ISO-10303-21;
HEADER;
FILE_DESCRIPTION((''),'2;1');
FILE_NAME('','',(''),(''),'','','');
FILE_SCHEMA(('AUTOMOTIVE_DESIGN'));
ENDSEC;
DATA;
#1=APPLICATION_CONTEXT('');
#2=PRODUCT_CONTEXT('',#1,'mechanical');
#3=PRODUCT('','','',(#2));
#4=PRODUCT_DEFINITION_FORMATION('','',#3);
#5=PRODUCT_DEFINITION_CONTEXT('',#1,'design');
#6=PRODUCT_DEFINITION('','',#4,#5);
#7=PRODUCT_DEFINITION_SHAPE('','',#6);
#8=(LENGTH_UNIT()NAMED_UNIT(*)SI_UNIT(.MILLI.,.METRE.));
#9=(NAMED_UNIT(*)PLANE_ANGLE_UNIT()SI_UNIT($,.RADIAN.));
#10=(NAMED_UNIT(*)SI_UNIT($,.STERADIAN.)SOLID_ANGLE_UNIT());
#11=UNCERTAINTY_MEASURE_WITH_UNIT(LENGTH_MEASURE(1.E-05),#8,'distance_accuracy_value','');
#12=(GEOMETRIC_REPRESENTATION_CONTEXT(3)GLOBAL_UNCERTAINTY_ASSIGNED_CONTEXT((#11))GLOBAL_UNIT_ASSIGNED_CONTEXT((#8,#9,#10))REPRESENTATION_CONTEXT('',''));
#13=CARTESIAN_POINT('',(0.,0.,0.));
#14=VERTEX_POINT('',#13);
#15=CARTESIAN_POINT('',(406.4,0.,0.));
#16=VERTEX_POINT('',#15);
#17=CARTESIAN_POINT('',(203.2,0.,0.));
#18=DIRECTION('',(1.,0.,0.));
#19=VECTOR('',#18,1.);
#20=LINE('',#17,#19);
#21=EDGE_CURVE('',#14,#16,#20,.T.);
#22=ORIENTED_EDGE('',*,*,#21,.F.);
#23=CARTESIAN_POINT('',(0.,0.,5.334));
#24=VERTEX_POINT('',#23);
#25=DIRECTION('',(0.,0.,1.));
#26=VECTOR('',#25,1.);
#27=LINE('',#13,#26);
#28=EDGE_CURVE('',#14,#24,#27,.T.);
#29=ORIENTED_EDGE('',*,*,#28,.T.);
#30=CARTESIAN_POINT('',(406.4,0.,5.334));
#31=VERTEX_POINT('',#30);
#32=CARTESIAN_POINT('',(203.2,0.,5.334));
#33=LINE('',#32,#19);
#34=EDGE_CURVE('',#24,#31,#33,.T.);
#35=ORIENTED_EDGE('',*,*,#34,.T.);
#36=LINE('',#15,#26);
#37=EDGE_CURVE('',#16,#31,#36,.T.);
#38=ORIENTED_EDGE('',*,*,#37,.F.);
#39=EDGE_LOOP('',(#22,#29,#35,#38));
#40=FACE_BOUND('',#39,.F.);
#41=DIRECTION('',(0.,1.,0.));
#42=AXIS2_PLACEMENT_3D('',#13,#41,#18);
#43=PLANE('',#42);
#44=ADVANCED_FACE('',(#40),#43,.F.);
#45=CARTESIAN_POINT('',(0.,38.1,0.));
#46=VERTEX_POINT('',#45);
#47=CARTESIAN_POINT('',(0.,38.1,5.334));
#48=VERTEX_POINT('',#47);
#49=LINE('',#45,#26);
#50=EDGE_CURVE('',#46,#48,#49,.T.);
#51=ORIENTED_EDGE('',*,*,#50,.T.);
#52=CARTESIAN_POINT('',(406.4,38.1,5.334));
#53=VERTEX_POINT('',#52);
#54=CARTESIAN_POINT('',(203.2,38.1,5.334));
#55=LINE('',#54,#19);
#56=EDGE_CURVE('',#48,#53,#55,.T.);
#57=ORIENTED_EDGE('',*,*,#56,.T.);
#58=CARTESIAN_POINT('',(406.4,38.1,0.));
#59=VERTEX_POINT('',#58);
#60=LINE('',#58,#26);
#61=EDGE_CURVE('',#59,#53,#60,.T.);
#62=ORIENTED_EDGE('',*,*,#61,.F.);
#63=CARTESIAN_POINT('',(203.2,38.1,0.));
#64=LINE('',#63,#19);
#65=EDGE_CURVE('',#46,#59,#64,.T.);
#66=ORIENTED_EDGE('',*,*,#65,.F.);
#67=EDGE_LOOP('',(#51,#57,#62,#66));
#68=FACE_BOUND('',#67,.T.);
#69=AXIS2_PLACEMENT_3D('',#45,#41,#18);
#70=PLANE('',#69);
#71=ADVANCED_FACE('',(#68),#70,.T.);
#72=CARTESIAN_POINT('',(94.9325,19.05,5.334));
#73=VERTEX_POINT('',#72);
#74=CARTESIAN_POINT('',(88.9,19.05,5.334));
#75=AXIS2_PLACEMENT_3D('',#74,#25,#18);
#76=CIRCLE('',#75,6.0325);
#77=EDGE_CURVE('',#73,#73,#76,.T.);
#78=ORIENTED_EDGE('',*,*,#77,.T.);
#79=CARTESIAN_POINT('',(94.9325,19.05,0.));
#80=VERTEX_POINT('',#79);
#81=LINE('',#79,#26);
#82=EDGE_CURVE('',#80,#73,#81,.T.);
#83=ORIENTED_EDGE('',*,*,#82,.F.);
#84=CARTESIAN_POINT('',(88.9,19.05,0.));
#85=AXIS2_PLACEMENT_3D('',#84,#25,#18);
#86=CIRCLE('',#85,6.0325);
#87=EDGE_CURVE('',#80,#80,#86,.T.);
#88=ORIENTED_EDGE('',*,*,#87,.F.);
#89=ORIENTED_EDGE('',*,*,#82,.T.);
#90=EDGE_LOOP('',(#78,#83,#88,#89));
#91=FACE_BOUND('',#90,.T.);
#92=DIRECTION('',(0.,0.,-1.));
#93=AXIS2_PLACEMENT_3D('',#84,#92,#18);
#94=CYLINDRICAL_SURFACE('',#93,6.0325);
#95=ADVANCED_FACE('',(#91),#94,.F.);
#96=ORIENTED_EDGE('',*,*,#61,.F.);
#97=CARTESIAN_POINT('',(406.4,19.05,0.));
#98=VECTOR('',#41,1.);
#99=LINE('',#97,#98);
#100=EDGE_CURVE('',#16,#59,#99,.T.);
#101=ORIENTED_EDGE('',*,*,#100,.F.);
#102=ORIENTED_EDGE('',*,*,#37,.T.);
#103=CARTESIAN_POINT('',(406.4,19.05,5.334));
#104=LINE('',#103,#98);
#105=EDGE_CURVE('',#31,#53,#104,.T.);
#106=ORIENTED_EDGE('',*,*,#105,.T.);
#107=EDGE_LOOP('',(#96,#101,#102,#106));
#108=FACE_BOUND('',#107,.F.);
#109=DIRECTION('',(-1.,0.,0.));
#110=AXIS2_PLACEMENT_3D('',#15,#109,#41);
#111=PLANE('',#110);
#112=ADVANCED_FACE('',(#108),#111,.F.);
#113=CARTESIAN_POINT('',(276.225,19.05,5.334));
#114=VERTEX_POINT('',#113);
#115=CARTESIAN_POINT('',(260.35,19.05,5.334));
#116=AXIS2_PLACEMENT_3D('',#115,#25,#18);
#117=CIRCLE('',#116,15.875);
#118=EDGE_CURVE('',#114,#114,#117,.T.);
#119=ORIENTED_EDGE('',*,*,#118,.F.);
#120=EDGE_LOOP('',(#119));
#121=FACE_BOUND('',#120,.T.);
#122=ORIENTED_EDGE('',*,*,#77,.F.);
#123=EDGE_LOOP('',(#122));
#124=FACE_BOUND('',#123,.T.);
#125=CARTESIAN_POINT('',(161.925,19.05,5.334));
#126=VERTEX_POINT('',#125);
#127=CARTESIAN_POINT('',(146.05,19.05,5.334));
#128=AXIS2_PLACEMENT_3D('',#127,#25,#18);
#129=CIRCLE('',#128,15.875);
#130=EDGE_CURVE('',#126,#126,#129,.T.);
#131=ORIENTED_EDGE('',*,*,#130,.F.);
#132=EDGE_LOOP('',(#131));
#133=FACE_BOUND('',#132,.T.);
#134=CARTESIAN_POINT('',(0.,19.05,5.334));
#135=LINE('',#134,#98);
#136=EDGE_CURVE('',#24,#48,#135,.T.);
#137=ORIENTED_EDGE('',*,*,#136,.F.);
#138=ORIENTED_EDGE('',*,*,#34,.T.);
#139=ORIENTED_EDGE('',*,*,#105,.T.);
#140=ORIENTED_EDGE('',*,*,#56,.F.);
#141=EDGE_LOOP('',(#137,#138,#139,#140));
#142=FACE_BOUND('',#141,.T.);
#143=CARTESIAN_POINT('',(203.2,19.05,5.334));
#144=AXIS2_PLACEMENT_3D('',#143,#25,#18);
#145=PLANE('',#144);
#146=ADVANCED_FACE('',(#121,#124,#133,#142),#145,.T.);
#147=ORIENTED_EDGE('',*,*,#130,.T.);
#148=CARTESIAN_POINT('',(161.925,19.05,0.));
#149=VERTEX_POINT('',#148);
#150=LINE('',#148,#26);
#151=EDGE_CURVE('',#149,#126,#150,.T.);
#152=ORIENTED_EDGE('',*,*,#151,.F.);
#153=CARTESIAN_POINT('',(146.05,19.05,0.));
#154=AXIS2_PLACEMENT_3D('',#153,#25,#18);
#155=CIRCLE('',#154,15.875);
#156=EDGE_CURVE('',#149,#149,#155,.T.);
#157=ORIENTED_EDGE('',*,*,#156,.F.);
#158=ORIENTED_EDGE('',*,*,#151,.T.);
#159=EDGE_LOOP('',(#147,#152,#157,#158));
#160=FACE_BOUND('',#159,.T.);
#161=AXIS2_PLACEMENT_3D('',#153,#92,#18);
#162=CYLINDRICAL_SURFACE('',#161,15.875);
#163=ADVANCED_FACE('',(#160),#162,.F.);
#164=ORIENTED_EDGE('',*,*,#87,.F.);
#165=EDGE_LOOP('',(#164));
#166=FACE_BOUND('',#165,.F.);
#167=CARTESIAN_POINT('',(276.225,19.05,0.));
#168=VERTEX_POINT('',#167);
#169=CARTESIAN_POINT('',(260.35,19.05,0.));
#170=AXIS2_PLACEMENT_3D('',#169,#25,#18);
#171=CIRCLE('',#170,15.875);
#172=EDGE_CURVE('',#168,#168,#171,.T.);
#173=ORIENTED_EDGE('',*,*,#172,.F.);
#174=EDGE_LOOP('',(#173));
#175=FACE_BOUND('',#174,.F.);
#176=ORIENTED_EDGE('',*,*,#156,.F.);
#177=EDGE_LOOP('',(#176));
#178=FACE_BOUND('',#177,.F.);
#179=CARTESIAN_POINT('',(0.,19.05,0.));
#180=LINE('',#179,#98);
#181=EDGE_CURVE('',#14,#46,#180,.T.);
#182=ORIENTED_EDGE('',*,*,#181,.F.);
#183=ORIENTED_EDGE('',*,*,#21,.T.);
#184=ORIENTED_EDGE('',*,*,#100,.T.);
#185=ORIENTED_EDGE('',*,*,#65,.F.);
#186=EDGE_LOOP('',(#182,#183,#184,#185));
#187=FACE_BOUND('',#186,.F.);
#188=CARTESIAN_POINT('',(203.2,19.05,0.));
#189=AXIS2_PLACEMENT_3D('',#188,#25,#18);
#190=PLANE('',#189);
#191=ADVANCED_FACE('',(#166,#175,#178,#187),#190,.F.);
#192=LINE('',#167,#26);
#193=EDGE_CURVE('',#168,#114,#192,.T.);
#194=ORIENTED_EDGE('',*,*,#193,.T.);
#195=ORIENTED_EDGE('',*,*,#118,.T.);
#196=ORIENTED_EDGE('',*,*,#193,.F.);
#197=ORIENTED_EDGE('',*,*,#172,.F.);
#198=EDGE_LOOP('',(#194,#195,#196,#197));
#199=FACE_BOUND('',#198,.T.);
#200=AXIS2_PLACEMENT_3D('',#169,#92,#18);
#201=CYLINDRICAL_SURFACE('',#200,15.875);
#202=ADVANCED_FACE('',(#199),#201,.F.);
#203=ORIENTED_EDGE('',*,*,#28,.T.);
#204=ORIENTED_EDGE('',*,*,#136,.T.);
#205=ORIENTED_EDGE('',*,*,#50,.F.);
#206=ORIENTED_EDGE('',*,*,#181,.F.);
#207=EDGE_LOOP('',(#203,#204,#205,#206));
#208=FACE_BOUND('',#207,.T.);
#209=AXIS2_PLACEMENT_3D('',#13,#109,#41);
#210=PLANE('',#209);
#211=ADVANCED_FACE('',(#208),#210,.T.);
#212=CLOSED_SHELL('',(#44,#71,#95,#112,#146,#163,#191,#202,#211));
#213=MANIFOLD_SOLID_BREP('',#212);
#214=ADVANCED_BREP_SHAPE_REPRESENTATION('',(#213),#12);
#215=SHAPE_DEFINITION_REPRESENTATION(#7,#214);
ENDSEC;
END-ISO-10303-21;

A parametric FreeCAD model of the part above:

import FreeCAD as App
import Part
import Sketcher

V = App.Vector
Q = App.Units.Quantity


def add_polygon(sketch, points):
    """Adds a closed chain of lines whose ends are joined by coincident constraints."""
    first, n = sketch.GeometryCount, len(points)
    for a, b in zip(points, points[1:] + points[:1]):
        sketch.addGeometry(Part.LineSegment(App.Vector(*a, 0), App.Vector(*b, 0)), False)
    for i in range(n):
        sketch.addConstraint(Sketcher.Constraint("Coincident", first + i, 2, first + (i + 1) % n, 1))

doc = App.newDocument("Part")
body = doc.addObject("PartDesign::Body", "Body")

sketch1 = body.newObject("Sketcher::SketchObject", "Sketch")
sketch1.AttachmentSupport = (doc.getObject("XY_Plane"), [""])
sketch1.MapMode = "FlatFace"
add_polygon(sketch1, [(0, 38), (0, 0), (406, 0), (406, 38)])
sketch1.addGeometry(Part.Circle(V(89, 19, 0), V(0, 0, 1), 6), False)
sketch1.addGeometry(Part.Circle(V(146, 19, 0), V(0, 0, 1), 16), False)
sketch1.addGeometry(Part.Circle(V(260, 19, 0), V(0, 0, 1), 16), False)
sketch1.addConstraint([
    Sketcher.Constraint("Vertical", 0),
    Sketcher.Constraint("Horizontal", 1),
    Sketcher.Constraint("Vertical", 2),
    Sketcher.Constraint("Horizontal", 3),
    Sketcher.Constraint("Coincident", 0, 2, -1, 1),
    Sketcher.Constraint("Equal", 5, 6),
    Sketcher.Constraint("Horizontal", 4, 3, 5, 3),
    Sketcher.Constraint("Horizontal", 5, 3, 6, 3),
    Sketcher.Constraint("Diameter", 5, Q("1.25 in")),
    Sketcher.Constraint("DistanceX", 1, 1, 1, 2, Q("16 in")),
    Sketcher.Constraint("Diameter", 4, Q("0.475 in")),
    Sketcher.Constraint("DistanceY", 0, 2, 0, 1, Q("1.5 in")),
    Sketcher.Constraint("DistanceX", -1, 1, 4, 3, Q("3.5 in")),
    Sketcher.Constraint("DistanceX", 5, 3, 6, 3, Q("4.5 in")),
    Sketcher.Constraint("DistanceY", -1, 1, 4, 3, Q("0.75 in")),
    Sketcher.Constraint("DistanceX", -1, 1, 5, 3, Q("5.75 in")),
])
pad1 = body.newObject("PartDesign::Pad", "Pad")
pad1.Profile = sketch1
pad1.Length = Q("0.21 in")

doc.recompute()
